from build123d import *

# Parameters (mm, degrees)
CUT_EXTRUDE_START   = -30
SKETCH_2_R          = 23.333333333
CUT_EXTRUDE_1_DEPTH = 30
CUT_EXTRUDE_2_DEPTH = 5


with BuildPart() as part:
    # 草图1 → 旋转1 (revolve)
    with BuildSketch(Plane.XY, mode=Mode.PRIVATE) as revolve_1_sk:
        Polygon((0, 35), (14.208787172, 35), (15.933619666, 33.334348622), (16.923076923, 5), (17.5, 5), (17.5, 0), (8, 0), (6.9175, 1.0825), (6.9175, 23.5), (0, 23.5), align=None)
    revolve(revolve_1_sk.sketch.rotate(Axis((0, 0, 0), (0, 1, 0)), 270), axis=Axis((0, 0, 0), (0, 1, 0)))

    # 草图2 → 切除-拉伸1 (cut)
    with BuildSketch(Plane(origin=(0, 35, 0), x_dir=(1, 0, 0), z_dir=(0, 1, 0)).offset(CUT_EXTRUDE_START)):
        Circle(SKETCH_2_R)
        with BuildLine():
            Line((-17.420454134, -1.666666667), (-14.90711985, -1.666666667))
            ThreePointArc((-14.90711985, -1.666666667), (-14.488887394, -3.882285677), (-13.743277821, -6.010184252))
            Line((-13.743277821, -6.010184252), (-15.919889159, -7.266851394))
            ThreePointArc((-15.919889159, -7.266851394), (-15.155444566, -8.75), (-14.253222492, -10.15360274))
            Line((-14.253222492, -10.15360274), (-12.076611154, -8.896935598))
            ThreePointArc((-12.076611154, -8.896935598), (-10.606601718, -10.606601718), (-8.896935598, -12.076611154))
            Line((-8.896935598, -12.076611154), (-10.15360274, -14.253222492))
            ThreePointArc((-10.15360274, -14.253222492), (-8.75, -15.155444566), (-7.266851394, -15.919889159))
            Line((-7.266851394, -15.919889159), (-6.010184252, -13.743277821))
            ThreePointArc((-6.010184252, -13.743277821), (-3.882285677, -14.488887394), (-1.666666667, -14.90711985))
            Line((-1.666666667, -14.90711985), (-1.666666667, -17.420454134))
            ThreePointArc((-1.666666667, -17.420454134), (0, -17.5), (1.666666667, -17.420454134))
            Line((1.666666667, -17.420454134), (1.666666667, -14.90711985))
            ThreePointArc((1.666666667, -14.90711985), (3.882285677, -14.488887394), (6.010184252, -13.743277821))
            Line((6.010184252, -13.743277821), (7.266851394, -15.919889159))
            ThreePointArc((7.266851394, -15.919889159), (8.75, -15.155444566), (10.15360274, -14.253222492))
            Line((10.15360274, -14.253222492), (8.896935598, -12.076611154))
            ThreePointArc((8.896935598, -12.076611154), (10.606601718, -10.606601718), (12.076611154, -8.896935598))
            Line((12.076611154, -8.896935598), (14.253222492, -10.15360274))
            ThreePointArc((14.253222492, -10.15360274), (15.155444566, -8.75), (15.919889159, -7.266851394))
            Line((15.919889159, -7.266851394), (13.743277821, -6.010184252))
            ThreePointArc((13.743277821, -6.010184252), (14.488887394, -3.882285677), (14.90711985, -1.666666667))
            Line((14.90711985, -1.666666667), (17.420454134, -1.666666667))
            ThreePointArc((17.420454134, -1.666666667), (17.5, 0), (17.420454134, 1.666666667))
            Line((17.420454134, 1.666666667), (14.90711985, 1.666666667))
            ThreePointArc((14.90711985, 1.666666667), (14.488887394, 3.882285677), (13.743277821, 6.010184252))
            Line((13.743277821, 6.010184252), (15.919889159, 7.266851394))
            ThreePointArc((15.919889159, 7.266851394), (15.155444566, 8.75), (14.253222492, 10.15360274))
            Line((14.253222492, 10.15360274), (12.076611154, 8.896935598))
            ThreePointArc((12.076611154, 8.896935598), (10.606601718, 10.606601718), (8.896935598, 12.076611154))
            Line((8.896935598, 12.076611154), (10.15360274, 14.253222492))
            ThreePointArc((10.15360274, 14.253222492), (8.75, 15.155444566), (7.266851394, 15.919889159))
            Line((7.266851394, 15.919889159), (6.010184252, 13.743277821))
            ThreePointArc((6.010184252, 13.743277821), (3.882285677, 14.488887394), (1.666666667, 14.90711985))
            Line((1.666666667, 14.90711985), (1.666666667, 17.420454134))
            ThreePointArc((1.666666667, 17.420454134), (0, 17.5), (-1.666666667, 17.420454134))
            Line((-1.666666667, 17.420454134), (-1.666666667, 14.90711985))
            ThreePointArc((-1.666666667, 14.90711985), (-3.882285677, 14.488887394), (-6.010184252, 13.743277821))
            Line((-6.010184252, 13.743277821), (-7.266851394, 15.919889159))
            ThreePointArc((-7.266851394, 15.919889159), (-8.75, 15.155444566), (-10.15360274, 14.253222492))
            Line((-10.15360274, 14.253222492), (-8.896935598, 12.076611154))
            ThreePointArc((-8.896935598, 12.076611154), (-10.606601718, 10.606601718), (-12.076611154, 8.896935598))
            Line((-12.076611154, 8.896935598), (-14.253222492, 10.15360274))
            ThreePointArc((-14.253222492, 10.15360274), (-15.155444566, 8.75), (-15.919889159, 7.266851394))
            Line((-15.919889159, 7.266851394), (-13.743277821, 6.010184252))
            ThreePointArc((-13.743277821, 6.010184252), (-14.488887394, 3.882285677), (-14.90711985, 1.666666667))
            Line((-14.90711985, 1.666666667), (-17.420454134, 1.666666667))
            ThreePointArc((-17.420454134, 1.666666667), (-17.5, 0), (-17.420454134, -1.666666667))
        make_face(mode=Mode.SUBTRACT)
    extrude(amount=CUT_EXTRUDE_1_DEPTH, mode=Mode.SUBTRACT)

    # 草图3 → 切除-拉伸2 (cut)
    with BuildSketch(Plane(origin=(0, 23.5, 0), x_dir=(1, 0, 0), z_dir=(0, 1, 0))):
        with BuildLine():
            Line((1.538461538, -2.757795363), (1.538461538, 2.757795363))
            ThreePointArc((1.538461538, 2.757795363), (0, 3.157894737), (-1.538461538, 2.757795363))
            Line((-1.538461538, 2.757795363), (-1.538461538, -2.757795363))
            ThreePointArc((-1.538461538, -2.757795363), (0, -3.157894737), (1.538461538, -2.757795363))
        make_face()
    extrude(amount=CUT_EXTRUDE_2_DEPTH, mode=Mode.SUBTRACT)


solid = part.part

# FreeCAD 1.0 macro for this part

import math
import FreeCAD as App
import Part
import Sketcher

V = App.Vector
Q = App.Units.Quantity

doc = App.newDocument("Part")
body = doc.addObject("PartDesign::Body", "Body")

sketch1 = body.newObject("Sketcher::SketchObject", "Sketch")
sketch1.AttachmentSupport = (doc.getObject("XY_Plane"), [""])
sketch1.MapMode = "FlatFace"
sketch1.addGeometry([
    Part.LineSegment(V(14.2, 35, 0), V(0, 35, 0)),
    Part.LineSegment(V(0, 35, 0), V(0, 23.5, 0)),
    Part.LineSegment(V(0, 23.5, 0), V(6.9, 23.5, 0)),
    Part.LineSegment(V(6.9, 23.5, 0), V(6.9, 1.1, 0)),
    Part.LineSegment(V(6.9, 1.1, 0), V(8, 0, 0)),
    Part.LineSegment(V(8, 0, 0), V(17.5, 0, 0)),
    Part.LineSegment(V(17.5, 0, 0), V(17.5, 5, 0)),
    Part.LineSegment(V(17.5, 5, 0), V(16.9, 5, 0)),
    Part.LineSegment(V(16.9, 5, 0), V(15.9, 33.3, 0)),
    Part.LineSegment(V(15.9, 33.3, 0), V(14.2, 35, 0)),
], False)
sketch1.addConstraint([
    Sketcher.Constraint("Coincident", 0, 2, 1, 1),
    Sketcher.Constraint("Coincident", 1, 2, 2, 1),
    Sketcher.Constraint("Coincident", 2, 2, 3, 1),
    Sketcher.Constraint("Coincident", 3, 2, 4, 1),
    Sketcher.Constraint("Coincident", 4, 2, 5, 1),
    Sketcher.Constraint("Coincident", 5, 2, 6, 1),
    Sketcher.Constraint("Coincident", 6, 2, 7, 1),
    Sketcher.Constraint("Coincident", 7, 2, 8, 1),
    Sketcher.Constraint("Coincident", 8, 2, 9, 1),
    Sketcher.Constraint("Coincident", 9, 2, 0, 1),
    Sketcher.Constraint("Horizontal", 0),
    Sketcher.Constraint("Vertical", 1),
    Sketcher.Constraint("Horizontal", 2),
    Sketcher.Constraint("Vertical", 3),
    Sketcher.Constraint("Horizontal", 5),
    Sketcher.Constraint("Vertical", 6),
    Sketcher.Constraint("Horizontal", 7),
    Sketcher.Constraint("PointOnObject", 0, 2, -2),
    Sketcher.Constraint("PointOnObject", 4, 2, -1),
    Sketcher.Constraint("DistanceY", 6, 1, 6, 2, 5.0),
    Sketcher.Constraint("Angle", 4, Q("-45 deg")),
    Sketcher.Constraint("Angle", 8, Q("92 deg")),
    Sketcher.Constraint("Angle", 9, Q("136 deg")),
    Sketcher.Constraint("DistanceX", 5, 1, 5, 2, 9.5),
    Sketcher.Constraint("DistanceY", 1, 2, 1, 1, 11.5),
    Sketcher.Constraint("DistanceY", -1, 1, 0, 2, 35.0),
    Sketcher.Constraint("DistanceX", -1, 1, 4, 2, 8.0),
    Sketcher.Constraint("DistanceX", 2, 1, 2, 2, 6.9175),
    Sketcher.Constraint("Distance", 9, 2.397799),
    Sketcher.Constraint("DistanceX", 0, 2, 0, 1, 14.208787),
])
revolution = body.newObject("PartDesign::Revolution", "Revolution")
revolution.Profile = sketch1
revolution.ReferenceAxis = (sketch1, ["V_Axis"])
revolution.Angle = 360

sketch2 = body.newObject("Sketcher::SketchObject", "Sketch001")
sketch2.AttachmentSupport = (doc.getObject("XZ_Plane"), [""])
sketch2.MapMode = "FlatFace"
sketch2.AttachmentOffset = App.Placement(V(0, 0, -5), App.Rotation())
sketch2.addGeometry([
    Part.Circle(V(0, 0, 0), V(0, 0, 1), 23.3),
    Part.LineSegment(V(-14.9, 1.7, 0), V(-17.4, 1.7, 0)),
    Part.ArcOfCircle(Part.Circle(V(0, 0, 0), V(0, 0, 1), 17.5), math.radians(174.53), math.radians(185.47)),
    Part.LineSegment(V(-17.4, -1.7, 0), V(-14.9, -1.7, 0)),
    Part.ArcOfCircle(Part.Circle(V(0, 0, 0), V(0, 0, 1), 15), math.radians(-173.62), math.radians(-156.38)),
    Part.LineSegment(V(-13.7, -6, 0), V(-15.9, -7.3, 0)),
    Part.ArcOfCircle(Part.Circle(V(0, 0, 0), V(0, 0, 1), 17.5), math.radians(-155.47), math.radians(-144.53)),
    Part.LineSegment(V(-14.3, -10.2, 0), V(-12.1, -8.9, 0)),
    Part.ArcOfCircle(Part.Circle(V(0, 0, 0), V(0, 0, 1), 15), math.radians(-143.62), math.radians(-126.38)),
    Part.LineSegment(V(-8.9, -12.1, 0), V(-10.2, -14.3, 0)),
    Part.ArcOfCircle(Part.Circle(V(0, 0, 0), V(0, 0, 1), 17.5), math.radians(-125.47), math.radians(-114.53)),
    Part.LineSegment(V(-7.3, -15.9, 0), V(-6, -13.7, 0)),
    Part.ArcOfCircle(Part.Circle(V(0, 0, 0), V(0, 0, 1), 15), math.radians(-113.62), math.radians(-96.38)),
    Part.LineSegment(V(-1.7, -14.9, 0), V(-1.7, -17.4, 0)),
    Part.ArcOfCircle(Part.Circle(V(0, 0, 0), V(0, 0, 1), 17.5), math.radians(-95.47), math.radians(-84.53)),
    Part.LineSegment(V(1.7, -17.4, 0), V(1.7, -14.9, 0)),
    Part.ArcOfCircle(Part.Circle(V(0, 0, 0), V(0, 0, 1), 15), math.radians(-83.62), math.radians(-66.38)),
    Part.LineSegment(V(6, -13.7, 0), V(7.3, -15.9, 0)),
    Part.ArcOfCircle(Part.Circle(V(0, 0, 0), V(0, 0, 1), 17.5), math.radians(-65.47), math.radians(-54.53)),
    Part.LineSegment(V(10.2, -14.3, 0), V(8.9, -12.1, 0)),
    Part.ArcOfCircle(Part.Circle(V(0, 0, 0), V(0, 0, 1), 15), math.radians(-53.62), math.radians(-36.38)),
    Part.LineSegment(V(12.1, -8.9, 0), V(14.3, -10.2, 0)),
    Part.ArcOfCircle(Part.Circle(V(0, 0, 0), V(0, 0, 1), 17.5), math.radians(-35.47), math.radians(-24.53)),
    Part.LineSegment(V(15.9, -7.3, 0), V(13.7, -6, 0)),
    Part.ArcOfCircle(Part.Circle(V(0, 0, 0), V(0, 0, 1), 15), math.radians(-23.62), math.radians(-6.38)),
    Part.LineSegment(V(14.9, -1.7, 0), V(17.4, -1.7, 0)),
    Part.ArcOfCircle(Part.Circle(V(0, 0, 0), V(0, 0, 1), 17.5), math.radians(-5.47), math.radians(5.47)),
    Part.LineSegment(V(17.4, 1.7, 0), V(14.9, 1.7, 0)),
    Part.ArcOfCircle(Part.Circle(V(0, 0, 0), V(0, 0, 1), 15), math.radians(6.38), math.radians(23.62)),
    Part.LineSegment(V(13.7, 6, 0), V(15.9, 7.3, 0)),
    Part.ArcOfCircle(Part.Circle(V(0, 0, 0), V(0, 0, 1), 17.5), math.radians(24.53), math.radians(35.47)),
    Part.LineSegment(V(14.3, 10.2, 0), V(12.1, 8.9, 0)),
    Part.ArcOfCircle(Part.Circle(V(0, 0, 0), V(0, 0, 1), 15), math.radians(36.38), math.radians(53.62)),
    Part.LineSegment(V(8.9, 12.1, 0), V(10.2, 14.3, 0)),
    Part.ArcOfCircle(Part.Circle(V(0, 0, 0), V(0, 0, 1), 17.5), math.radians(54.53), math.radians(65.47)),
    Part.LineSegment(V(7.3, 15.9, 0), V(6, 13.7, 0)),
    Part.ArcOfCircle(Part.Circle(V(0, 0, 0), V(0, 0, 1), 15), math.radians(66.38), math.radians(83.62)),
    Part.LineSegment(V(1.7, 14.9, 0), V(1.7, 17.4, 0)),
    Part.ArcOfCircle(Part.Circle(V(0, 0, 0), V(0, 0, 1), 17.5), math.radians(84.53), math.radians(95.47)),
    Part.LineSegment(V(-1.7, 17.4, 0), V(-1.7, 14.9, 0)),
    Part.ArcOfCircle(Part.Circle(V(0, 0, 0), V(0, 0, 1), 15), math.radians(96.38), math.radians(113.62)),
    Part.LineSegment(V(-6, 13.7, 0), V(-7.3, 15.9, 0)),
    Part.ArcOfCircle(Part.Circle(V(0, 0, 0), V(0, 0, 1), 17.5), math.radians(114.53), math.radians(125.47)),
    Part.LineSegment(V(-10.2, 14.3, 0), V(-8.9, 12.1, 0)),
    Part.ArcOfCircle(Part.Circle(V(0, 0, 0), V(0, 0, 1), 15), math.radians(126.38), math.radians(143.62)),
    Part.LineSegment(V(-12.1, 8.9, 0), V(-14.3, 10.2, 0)),
    Part.ArcOfCircle(Part.Circle(V(0, 0, 0), V(0, 0, 1), 17.5), math.radians(144.53), math.radians(155.47)),
    Part.LineSegment(V(-15.9, 7.3, 0), V(-13.7, 6, 0)),
    Part.ArcOfCircle(Part.Circle(V(0, 0, 0), V(0, 0, 1), 15), math.radians(156.38), math.radians(173.62)),
], False)
sketch2.addConstraint([
    Sketcher.Constraint("Coincident", 1, 2, 2, 1),
    Sketcher.Constraint("Coincident", 2, 2, 3, 1),
    Sketcher.Constraint("Coincident", 3, 2, 4, 1),
    Sketcher.Constraint("Coincident", 4, 2, 5, 1),
    Sketcher.Constraint("Coincident", 5, 2, 6, 1),
    Sketcher.Constraint("Coincident", 6, 2, 7, 1),
    Sketcher.Constraint("Coincident", 7, 2, 8, 1),
    Sketcher.Constraint("Coincident", 8, 2, 9, 1),
    Sketcher.Constraint("Coincident", 9, 2, 10, 1),
    Sketcher.Constraint("Coincident", 10, 2, 11, 1),
    Sketcher.Constraint("Coincident", 11, 2, 12, 1),
    Sketcher.Constraint("Coincident", 12, 2, 13, 1),
    Sketcher.Constraint("Coincident", 13, 2, 14, 1),
    Sketcher.Constraint("Coincident", 14, 2, 15, 1),
    Sketcher.Constraint("Coincident", 15, 2, 16, 1),
    Sketcher.Constraint("Coincident", 16, 2, 17, 1),
    Sketcher.Constraint("Coincident", 17, 2, 18, 1),
    Sketcher.Constraint("Coincident", 18, 2, 19, 1),
    Sketcher.Constraint("Coincident", 19, 2, 20, 1),
    Sketcher.Constraint("Coincident", 20, 2, 21, 1),
    Sketcher.Constraint("Coincident", 21, 2, 22, 1),
    Sketcher.Constraint("Coincident", 22, 2, 23, 1),
    Sketcher.Constraint("Coincident", 23, 2, 24, 1),
    Sketcher.Constraint("Coincident", 24, 2, 25, 1),
    Sketcher.Constraint("Coincident", 25, 2, 26, 1),
    Sketcher.Constraint("Coincident", 26, 2, 27, 1),
    Sketcher.Constraint("Coincident", 27, 2, 28, 1),
    Sketcher.Constraint("Coincident", 28, 2, 29, 1),
    Sketcher.Constraint("Coincident", 29, 2, 30, 1),
    Sketcher.Constraint("Coincident", 30, 2, 31, 1),
    Sketcher.Constraint("Coincident", 31, 2, 32, 1),
    Sketcher.Constraint("Coincident", 32, 2, 33, 1),
    Sketcher.Constraint("Coincident", 33, 2, 34, 1),
    Sketcher.Constraint("Coincident", 34, 2, 35, 1),
    Sketcher.Constraint("Coincident", 35, 2, 36, 1),
    Sketcher.Constraint("Coincident", 36, 2, 37, 1),
    Sketcher.Constraint("Coincident", 37, 2, 38, 1),
    Sketcher.Constraint("Coincident", 38, 2, 39, 1),
    Sketcher.Constraint("Coincident", 39, 2, 40, 1),
    Sketcher.Constraint("Coincident", 40, 2, 41, 1),
    Sketcher.Constraint("Coincident", 41, 2, 42, 1),
    Sketcher.Constraint("Coincident", 42, 2, 43, 1),
    Sketcher.Constraint("Coincident", 43, 2, 44, 1),
    Sketcher.Constraint("Coincident", 44, 2, 45, 1),
    Sketcher.Constraint("Coincident", 45, 2, 46, 1),
    Sketcher.Constraint("Coincident", 46, 2, 47, 1),
    Sketcher.Constraint("Coincident", 47, 2, 48, 1),
    Sketcher.Constraint("Coincident", 48, 2, 1, 1),
    Sketcher.Constraint("Horizontal", 1),
    Sketcher.Constraint("Horizontal", 3),
    Sketcher.Constraint("Vertical", 13),
    Sketcher.Constraint("Vertical", 15),
    Sketcher.Constraint("Horizontal", 25),
    Sketcher.Constraint("Horizontal", 27),
    Sketcher.Constraint("Vertical", 37),
    Sketcher.Constraint("Vertical", 39),
    Sketcher.Constraint("Coincident", 0, 3, -1, 1),
    Sketcher.Constraint("Coincident", 2, 3, -1, 1),
    Sketcher.Constraint("Coincident", 4, 3, -1, 1),
    Sketcher.Constraint("Coincident", 6, 3, -1, 1),
    Sketcher.Constraint("Coincident", 8, 3, -1, 1),
    Sketcher.Constraint("Coincident", 10, 3, -1, 1),
    Sketcher.Constraint("Coincident", 12, 3, -1, 1),
    Sketcher.Constraint("Coincident", 14, 3, -1, 1),
    Sketcher.Constraint("Coincident", 16, 3, -1, 1),
    Sketcher.Constraint("Coincident", 18, 3, -1, 1),
    Sketcher.Constraint("Coincident", 20, 3, -1, 1),
    Sketcher.Constraint("Coincident", 22, 3, -1, 1),
    Sketcher.Constraint("Coincident", 24, 3, -1, 1),
    Sketcher.Constraint("Coincident", 26, 3, -1, 1),
    Sketcher.Constraint("Coincident", 28, 3, -1, 1),
    Sketcher.Constraint("Coincident", 30, 3, -1, 1),
    Sketcher.Constraint("Coincident", 32, 3, -1, 1),
    Sketcher.Constraint("Coincident", 34, 3, -1, 1),
    Sketcher.Constraint("Coincident", 36, 3, -1, 1),
    Sketcher.Constraint("Coincident", 38, 3, -1, 1),
    Sketcher.Constraint("Coincident", 40, 3, -1, 1),
    Sketcher.Constraint("Coincident", 42, 3, -1, 1),
    Sketcher.Constraint("Coincident", 44, 3, -1, 1),
    Sketcher.Constraint("Coincident", 46, 3, -1, 1),
    Sketcher.Constraint("Coincident", 48, 3, -1, 1),
    Sketcher.Constraint("Equal", 2, 6),
    Sketcher.Constraint("Equal", 4, 8),
    Sketcher.Constraint("Equal", 6, 10),
    Sketcher.Constraint("Equal", 8, 12),
    Sketcher.Constraint("Equal", 10, 14),
    Sketcher.Constraint("Equal", 12, 16),
    Sketcher.Constraint("Equal", 14, 18),
    Sketcher.Constraint("Equal", 16, 20),
    Sketcher.Constraint("Equal", 18, 22),
    Sketcher.Constraint("Equal", 20, 24),
    Sketcher.Constraint("Equal", 22, 26),
    Sketcher.Constraint("Equal", 24, 28),
    Sketcher.Constraint("Equal", 26, 30),
    Sketcher.Constraint("Equal", 28, 32),
    Sketcher.Constraint("Equal", 30, 34),
    Sketcher.Constraint("Equal", 32, 36),
    Sketcher.Constraint("Equal", 34, 38),
    Sketcher.Constraint("Equal", 36, 40),
    Sketcher.Constraint("Equal", 38, 42),
    Sketcher.Constraint("Equal", 40, 44),
    Sketcher.Constraint("Equal", 42, 46),
    Sketcher.Constraint("Equal", 44, 48),
    Sketcher.Constraint("Parallel", 5, 7),
    Sketcher.Constraint("Parallel", 9, 11),
    Sketcher.Constraint("Perpendicular", 7, 17),
    Sketcher.Constraint("Parallel", 17, 19),
    Sketcher.Constraint("Perpendicular", 11, 21),
    Sketcher.Constraint("Parallel", 21, 23),
    Sketcher.Constraint("Perpendicular", 19, 29),
    Sketcher.Constraint("Parallel", 29, 31),
    Sketcher.Constraint("Perpendicular", 23, 33),
    Sketcher.Constraint("Parallel", 33, 35),
    Sketcher.Constraint("Perpendicular", 31, 41),
    Sketcher.Constraint("Parallel", 41, 43),
    Sketcher.Constraint("Perpendicular", 35, 45),
    Sketcher.Constraint("Parallel", 45, 47),
    Sketcher.Constraint("Horizontal", 13, 2, 14, 2),
    Sketcher.Constraint("Horizontal", 11, 2, 16, 2),
    Sketcher.Constraint("Horizontal", 10, 2, 17, 2),
    Sketcher.Constraint("Horizontal", 9, 2, 18, 2),
    Sketcher.Constraint("Horizontal", 7, 2, 20, 2),
    Sketcher.Constraint("Horizontal", 5, 2, 22, 2),
    Sketcher.Constraint("Horizontal", 3, 2, 24, 2),
    Sketcher.Constraint("Horizontal", 1, 2, 26, 2),
    Sketcher.Constraint("Horizontal", 37, 2, 38, 2),
    Sketcher.Constraint("Horizontal", 35, 2, 40, 2),
    Sketcher.Constraint("Horizontal", 33, 2, 42, 2),
    Sketcher.Constraint("Horizontal", 31, 2, 44, 2),
    Sketcher.Constraint("Horizontal", 29, 2, 46, 2),
    Sketcher.Constraint("Vertical", 1, 2, 2, 2),
    Sketcher.Constraint("Vertical", 23, 2, 28, 2),
    Sketcher.Constraint("Vertical", 21, 2, 30, 2),
    Sketcher.Constraint("Vertical", 19, 2, 32, 2),
    Sketcher.Constraint("Vertical", 17, 2, 34, 2),
    Sketcher.Constraint("Vertical", 15, 2, 36, 2),
    Sketcher.Constraint("Equal", 27, 13),
    Sketcher.Constraint("Equal", 5, 7),
    Sketcher.Constraint("Equal", 7, 9),
    Sketcher.Constraint("Equal", 9, 11),
    Sketcher.Constraint("Radius", 4, 15.0),
    Sketcher.Constraint("Radius", 2, 17.5),
    Sketcher.Constraint("Angle", 5, Q("-150 deg")),
    Sketcher.Constraint("Diameter", 0, 46.666667),
    Sketcher.Constraint("DistanceX", 1, 2, 1, 1, 2.513334),
    Sketcher.Constraint("DistanceX", 5, 2, -1, 1, 15.919889),
])
pocket1 = body.newObject("PartDesign::Pocket", "Pocket")
pocket1.Profile = sketch2
pocket1.Length = 30

sketch3 = body.newObject("Sketcher::SketchObject", "Sketch002")
sketch3.AttachmentSupport = (doc.getObject("XZ_Plane"), [""])
sketch3.MapMode = "FlatFace"
sketch3.AttachmentOffset = App.Placement(V(0, 0, -23.5), App.Rotation())
sketch3.addGeometry([
    Part.LineSegment(V(1.5, 2.8, 0), V(1.5, -2.8, 0)),
    Part.ArcOfCircle(Part.Circle(V(0, 0, 0), V(0, 0, 1), 3.2), math.radians(-119), math.radians(-61)),
    Part.LineSegment(V(-1.5, -2.8, 0), V(-1.5, 2.8, 0)),
    Part.ArcOfCircle(Part.Circle(V(0, 0, 0), V(0, 0, 1), 3.2), math.radians(61), math.radians(119)),
], False)
sketch3.addConstraint([
    Sketcher.Constraint("Coincident", 0, 2, 1, 2),
    Sketcher.Constraint("Coincident", 1, 1, 2, 1),
    Sketcher.Constraint("Coincident", 2, 2, 3, 2),
    Sketcher.Constraint("Coincident", 3, 1, 0, 1),
    Sketcher.Constraint("Vertical", 0),
    Sketcher.Constraint("Vertical", 2),
    Sketcher.Constraint("Coincident", 1, 3, -1, 1),
    Sketcher.Constraint("Coincident", 3, 3, -1, 1),
    Sketcher.Constraint("Equal", 1, 3),
    Sketcher.Constraint("Horizontal", 0, 2, 1, 1),
    Sketcher.Constraint("Radius", 1, 3.157895),
    Sketcher.Constraint("DistanceY", 0, 2, 0, 1, 5.515591),
])
pocket2 = body.newObject("PartDesign::Pocket", "Pocket001")
pocket2.Profile = sketch3
pocket2.Length = 5

doc.recompute()
